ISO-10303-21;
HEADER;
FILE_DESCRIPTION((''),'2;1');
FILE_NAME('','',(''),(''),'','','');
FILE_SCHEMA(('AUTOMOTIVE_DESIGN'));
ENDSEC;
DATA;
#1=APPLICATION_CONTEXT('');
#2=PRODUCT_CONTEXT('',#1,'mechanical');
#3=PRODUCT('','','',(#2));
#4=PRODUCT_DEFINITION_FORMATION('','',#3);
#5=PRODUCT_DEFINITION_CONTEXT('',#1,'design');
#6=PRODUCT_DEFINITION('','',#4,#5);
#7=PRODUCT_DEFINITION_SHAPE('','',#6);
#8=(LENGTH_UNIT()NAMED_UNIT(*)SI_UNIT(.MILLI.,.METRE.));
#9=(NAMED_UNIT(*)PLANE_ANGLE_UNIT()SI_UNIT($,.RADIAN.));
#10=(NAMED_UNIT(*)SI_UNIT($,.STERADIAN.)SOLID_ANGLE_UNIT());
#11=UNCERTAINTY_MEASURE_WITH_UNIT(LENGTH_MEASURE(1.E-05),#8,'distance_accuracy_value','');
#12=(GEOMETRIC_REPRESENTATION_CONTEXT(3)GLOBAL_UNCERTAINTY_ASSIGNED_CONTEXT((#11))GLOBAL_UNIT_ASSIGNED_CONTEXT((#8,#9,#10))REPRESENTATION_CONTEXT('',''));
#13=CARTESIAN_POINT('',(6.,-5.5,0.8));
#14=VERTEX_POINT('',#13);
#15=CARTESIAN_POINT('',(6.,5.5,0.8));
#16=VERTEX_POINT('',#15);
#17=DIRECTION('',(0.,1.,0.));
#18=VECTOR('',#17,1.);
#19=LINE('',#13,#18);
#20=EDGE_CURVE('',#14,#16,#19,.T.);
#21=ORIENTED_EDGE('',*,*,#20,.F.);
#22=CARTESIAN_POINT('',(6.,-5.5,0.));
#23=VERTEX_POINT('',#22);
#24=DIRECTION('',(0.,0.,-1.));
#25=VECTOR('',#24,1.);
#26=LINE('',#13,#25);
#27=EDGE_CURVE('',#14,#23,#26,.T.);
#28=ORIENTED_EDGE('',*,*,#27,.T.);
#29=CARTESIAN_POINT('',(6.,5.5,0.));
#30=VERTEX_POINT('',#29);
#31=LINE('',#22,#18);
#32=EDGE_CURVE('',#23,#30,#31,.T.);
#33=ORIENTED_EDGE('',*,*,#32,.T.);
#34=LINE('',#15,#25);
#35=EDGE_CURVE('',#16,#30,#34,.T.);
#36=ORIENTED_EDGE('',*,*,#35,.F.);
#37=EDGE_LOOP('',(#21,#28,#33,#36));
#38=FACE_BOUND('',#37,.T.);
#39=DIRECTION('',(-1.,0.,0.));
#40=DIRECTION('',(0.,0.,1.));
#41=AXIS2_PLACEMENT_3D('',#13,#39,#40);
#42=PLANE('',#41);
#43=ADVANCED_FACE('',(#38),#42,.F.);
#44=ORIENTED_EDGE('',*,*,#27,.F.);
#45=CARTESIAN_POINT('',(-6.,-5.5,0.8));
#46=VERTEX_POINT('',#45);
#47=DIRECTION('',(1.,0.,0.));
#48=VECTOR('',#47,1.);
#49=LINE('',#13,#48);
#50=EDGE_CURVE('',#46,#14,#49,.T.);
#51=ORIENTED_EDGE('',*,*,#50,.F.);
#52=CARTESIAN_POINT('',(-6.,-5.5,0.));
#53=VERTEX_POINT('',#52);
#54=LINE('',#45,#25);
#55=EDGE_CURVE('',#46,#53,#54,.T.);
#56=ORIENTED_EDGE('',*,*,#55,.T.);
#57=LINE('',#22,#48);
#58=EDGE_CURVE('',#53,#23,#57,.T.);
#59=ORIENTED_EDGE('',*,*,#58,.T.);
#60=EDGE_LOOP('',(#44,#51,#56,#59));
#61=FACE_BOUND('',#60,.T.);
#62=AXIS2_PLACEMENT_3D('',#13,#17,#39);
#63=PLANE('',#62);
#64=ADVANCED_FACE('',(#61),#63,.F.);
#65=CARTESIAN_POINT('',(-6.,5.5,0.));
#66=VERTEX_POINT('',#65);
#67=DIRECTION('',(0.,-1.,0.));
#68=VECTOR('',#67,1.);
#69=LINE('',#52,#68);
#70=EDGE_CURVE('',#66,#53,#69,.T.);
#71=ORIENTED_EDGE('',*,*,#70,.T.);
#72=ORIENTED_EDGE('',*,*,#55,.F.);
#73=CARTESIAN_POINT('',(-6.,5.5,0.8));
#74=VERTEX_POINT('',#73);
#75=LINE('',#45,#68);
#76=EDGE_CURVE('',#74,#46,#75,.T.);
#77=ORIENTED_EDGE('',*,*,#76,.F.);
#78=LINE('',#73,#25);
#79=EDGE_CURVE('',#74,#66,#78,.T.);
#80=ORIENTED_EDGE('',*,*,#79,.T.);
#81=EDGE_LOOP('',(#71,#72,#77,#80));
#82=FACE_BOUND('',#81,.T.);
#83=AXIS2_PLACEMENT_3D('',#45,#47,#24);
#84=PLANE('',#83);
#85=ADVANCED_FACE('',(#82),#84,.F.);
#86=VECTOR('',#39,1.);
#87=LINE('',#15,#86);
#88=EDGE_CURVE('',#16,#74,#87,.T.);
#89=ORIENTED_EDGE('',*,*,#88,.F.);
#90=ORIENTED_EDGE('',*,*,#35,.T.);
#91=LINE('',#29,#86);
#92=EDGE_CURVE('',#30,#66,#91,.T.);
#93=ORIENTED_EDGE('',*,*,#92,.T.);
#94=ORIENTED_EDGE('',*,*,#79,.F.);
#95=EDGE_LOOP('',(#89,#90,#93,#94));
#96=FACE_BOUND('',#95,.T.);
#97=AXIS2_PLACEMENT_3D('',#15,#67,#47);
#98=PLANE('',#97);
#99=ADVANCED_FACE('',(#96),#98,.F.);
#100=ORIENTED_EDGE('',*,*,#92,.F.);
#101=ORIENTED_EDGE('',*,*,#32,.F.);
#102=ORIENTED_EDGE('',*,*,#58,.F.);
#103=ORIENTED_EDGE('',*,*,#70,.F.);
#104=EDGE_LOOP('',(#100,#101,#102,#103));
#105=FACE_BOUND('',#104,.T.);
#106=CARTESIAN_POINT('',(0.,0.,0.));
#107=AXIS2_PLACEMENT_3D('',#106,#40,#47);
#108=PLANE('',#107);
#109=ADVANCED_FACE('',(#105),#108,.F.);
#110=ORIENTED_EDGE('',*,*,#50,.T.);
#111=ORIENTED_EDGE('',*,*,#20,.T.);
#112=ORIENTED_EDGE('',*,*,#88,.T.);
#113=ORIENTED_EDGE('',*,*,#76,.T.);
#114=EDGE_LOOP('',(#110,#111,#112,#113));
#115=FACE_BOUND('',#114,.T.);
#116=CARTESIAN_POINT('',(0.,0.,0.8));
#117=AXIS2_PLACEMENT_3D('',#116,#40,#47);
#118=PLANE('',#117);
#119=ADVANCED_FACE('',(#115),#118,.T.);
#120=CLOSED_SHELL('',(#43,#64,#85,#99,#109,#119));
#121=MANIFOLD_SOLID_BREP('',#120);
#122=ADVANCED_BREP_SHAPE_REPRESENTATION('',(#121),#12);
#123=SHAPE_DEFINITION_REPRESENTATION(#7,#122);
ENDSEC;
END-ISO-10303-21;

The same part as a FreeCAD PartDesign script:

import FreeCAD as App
import Part
import Sketcher

V = App.Vector

doc = App.newDocument("Part")
params = doc.addObject("Spreadsheet::Sheet", "Params")
for row, (alias, value) in enumerate([
    ("sketch1_width", "12 mm"),
    ("sketch1_height", "11 mm"),
    ("pad1_length", "0.8 mm"),
], start=1):
    params.set(f"A{row}", alias)
    params.set(f"B{row}", "=" + value)
    params.setAlias(f"B{row}", alias)

body = doc.addObject("PartDesign::Body", "Body")

# Sketch on XY plane
sketch1 = doc.addObject("Sketcher::SketchObject", "Sketch")
body.addObject(sketch1)
sketch1.AttachmentSupport = (doc.XY_Plane, [""])
sketch1.MapMode = "FlatFace"
sketch1.addGeometry([
    Part.LineSegment(V(-6, 6, 0), V(-6, -6, 0)),
    Part.LineSegment(V(-6, -6, 0), V(6, -6, 0)),
    Part.LineSegment(V(6, -6, 0), V(6, 6, 0)),
    Part.LineSegment(V(6, 6, 0), V(-6, 6, 0)),
], False)
sketch1.addConstraint([
    Sketcher.Constraint("Coincident", 0, 2, 1, 1),
    Sketcher.Constraint("Coincident", 1, 2, 2, 1),
    Sketcher.Constraint("Coincident", 2, 2, 3, 1),
    Sketcher.Constraint("Coincident", 3, 2, 0, 1),
    Sketcher.Constraint("Vertical", 0),
    Sketcher.Constraint("Horizontal", 1),
    Sketcher.Constraint("Vertical", 2),
    Sketcher.Constraint("Horizontal", 3),
    Sketcher.Constraint("Symmetric", 0, 2, 2, 2, -1, 1),
    Sketcher.Constraint("DistanceX", 1, 1, 1, 2, 12.0),
    Sketcher.Constraint("DistanceY", 0, 2, 0, 1, 11.0),
])
sketch1.setExpression("Constraints[9]", "Params.sketch1_width")
sketch1.setExpression("Constraints[10]", "Params.sketch1_height")
pad1 = doc.addObject("PartDesign::Pad", "Pad")
body.addObject(pad1)
pad1.Profile = sketch1
pad1.setExpression("Length", "Params.pad1_length")

doc.recompute()
